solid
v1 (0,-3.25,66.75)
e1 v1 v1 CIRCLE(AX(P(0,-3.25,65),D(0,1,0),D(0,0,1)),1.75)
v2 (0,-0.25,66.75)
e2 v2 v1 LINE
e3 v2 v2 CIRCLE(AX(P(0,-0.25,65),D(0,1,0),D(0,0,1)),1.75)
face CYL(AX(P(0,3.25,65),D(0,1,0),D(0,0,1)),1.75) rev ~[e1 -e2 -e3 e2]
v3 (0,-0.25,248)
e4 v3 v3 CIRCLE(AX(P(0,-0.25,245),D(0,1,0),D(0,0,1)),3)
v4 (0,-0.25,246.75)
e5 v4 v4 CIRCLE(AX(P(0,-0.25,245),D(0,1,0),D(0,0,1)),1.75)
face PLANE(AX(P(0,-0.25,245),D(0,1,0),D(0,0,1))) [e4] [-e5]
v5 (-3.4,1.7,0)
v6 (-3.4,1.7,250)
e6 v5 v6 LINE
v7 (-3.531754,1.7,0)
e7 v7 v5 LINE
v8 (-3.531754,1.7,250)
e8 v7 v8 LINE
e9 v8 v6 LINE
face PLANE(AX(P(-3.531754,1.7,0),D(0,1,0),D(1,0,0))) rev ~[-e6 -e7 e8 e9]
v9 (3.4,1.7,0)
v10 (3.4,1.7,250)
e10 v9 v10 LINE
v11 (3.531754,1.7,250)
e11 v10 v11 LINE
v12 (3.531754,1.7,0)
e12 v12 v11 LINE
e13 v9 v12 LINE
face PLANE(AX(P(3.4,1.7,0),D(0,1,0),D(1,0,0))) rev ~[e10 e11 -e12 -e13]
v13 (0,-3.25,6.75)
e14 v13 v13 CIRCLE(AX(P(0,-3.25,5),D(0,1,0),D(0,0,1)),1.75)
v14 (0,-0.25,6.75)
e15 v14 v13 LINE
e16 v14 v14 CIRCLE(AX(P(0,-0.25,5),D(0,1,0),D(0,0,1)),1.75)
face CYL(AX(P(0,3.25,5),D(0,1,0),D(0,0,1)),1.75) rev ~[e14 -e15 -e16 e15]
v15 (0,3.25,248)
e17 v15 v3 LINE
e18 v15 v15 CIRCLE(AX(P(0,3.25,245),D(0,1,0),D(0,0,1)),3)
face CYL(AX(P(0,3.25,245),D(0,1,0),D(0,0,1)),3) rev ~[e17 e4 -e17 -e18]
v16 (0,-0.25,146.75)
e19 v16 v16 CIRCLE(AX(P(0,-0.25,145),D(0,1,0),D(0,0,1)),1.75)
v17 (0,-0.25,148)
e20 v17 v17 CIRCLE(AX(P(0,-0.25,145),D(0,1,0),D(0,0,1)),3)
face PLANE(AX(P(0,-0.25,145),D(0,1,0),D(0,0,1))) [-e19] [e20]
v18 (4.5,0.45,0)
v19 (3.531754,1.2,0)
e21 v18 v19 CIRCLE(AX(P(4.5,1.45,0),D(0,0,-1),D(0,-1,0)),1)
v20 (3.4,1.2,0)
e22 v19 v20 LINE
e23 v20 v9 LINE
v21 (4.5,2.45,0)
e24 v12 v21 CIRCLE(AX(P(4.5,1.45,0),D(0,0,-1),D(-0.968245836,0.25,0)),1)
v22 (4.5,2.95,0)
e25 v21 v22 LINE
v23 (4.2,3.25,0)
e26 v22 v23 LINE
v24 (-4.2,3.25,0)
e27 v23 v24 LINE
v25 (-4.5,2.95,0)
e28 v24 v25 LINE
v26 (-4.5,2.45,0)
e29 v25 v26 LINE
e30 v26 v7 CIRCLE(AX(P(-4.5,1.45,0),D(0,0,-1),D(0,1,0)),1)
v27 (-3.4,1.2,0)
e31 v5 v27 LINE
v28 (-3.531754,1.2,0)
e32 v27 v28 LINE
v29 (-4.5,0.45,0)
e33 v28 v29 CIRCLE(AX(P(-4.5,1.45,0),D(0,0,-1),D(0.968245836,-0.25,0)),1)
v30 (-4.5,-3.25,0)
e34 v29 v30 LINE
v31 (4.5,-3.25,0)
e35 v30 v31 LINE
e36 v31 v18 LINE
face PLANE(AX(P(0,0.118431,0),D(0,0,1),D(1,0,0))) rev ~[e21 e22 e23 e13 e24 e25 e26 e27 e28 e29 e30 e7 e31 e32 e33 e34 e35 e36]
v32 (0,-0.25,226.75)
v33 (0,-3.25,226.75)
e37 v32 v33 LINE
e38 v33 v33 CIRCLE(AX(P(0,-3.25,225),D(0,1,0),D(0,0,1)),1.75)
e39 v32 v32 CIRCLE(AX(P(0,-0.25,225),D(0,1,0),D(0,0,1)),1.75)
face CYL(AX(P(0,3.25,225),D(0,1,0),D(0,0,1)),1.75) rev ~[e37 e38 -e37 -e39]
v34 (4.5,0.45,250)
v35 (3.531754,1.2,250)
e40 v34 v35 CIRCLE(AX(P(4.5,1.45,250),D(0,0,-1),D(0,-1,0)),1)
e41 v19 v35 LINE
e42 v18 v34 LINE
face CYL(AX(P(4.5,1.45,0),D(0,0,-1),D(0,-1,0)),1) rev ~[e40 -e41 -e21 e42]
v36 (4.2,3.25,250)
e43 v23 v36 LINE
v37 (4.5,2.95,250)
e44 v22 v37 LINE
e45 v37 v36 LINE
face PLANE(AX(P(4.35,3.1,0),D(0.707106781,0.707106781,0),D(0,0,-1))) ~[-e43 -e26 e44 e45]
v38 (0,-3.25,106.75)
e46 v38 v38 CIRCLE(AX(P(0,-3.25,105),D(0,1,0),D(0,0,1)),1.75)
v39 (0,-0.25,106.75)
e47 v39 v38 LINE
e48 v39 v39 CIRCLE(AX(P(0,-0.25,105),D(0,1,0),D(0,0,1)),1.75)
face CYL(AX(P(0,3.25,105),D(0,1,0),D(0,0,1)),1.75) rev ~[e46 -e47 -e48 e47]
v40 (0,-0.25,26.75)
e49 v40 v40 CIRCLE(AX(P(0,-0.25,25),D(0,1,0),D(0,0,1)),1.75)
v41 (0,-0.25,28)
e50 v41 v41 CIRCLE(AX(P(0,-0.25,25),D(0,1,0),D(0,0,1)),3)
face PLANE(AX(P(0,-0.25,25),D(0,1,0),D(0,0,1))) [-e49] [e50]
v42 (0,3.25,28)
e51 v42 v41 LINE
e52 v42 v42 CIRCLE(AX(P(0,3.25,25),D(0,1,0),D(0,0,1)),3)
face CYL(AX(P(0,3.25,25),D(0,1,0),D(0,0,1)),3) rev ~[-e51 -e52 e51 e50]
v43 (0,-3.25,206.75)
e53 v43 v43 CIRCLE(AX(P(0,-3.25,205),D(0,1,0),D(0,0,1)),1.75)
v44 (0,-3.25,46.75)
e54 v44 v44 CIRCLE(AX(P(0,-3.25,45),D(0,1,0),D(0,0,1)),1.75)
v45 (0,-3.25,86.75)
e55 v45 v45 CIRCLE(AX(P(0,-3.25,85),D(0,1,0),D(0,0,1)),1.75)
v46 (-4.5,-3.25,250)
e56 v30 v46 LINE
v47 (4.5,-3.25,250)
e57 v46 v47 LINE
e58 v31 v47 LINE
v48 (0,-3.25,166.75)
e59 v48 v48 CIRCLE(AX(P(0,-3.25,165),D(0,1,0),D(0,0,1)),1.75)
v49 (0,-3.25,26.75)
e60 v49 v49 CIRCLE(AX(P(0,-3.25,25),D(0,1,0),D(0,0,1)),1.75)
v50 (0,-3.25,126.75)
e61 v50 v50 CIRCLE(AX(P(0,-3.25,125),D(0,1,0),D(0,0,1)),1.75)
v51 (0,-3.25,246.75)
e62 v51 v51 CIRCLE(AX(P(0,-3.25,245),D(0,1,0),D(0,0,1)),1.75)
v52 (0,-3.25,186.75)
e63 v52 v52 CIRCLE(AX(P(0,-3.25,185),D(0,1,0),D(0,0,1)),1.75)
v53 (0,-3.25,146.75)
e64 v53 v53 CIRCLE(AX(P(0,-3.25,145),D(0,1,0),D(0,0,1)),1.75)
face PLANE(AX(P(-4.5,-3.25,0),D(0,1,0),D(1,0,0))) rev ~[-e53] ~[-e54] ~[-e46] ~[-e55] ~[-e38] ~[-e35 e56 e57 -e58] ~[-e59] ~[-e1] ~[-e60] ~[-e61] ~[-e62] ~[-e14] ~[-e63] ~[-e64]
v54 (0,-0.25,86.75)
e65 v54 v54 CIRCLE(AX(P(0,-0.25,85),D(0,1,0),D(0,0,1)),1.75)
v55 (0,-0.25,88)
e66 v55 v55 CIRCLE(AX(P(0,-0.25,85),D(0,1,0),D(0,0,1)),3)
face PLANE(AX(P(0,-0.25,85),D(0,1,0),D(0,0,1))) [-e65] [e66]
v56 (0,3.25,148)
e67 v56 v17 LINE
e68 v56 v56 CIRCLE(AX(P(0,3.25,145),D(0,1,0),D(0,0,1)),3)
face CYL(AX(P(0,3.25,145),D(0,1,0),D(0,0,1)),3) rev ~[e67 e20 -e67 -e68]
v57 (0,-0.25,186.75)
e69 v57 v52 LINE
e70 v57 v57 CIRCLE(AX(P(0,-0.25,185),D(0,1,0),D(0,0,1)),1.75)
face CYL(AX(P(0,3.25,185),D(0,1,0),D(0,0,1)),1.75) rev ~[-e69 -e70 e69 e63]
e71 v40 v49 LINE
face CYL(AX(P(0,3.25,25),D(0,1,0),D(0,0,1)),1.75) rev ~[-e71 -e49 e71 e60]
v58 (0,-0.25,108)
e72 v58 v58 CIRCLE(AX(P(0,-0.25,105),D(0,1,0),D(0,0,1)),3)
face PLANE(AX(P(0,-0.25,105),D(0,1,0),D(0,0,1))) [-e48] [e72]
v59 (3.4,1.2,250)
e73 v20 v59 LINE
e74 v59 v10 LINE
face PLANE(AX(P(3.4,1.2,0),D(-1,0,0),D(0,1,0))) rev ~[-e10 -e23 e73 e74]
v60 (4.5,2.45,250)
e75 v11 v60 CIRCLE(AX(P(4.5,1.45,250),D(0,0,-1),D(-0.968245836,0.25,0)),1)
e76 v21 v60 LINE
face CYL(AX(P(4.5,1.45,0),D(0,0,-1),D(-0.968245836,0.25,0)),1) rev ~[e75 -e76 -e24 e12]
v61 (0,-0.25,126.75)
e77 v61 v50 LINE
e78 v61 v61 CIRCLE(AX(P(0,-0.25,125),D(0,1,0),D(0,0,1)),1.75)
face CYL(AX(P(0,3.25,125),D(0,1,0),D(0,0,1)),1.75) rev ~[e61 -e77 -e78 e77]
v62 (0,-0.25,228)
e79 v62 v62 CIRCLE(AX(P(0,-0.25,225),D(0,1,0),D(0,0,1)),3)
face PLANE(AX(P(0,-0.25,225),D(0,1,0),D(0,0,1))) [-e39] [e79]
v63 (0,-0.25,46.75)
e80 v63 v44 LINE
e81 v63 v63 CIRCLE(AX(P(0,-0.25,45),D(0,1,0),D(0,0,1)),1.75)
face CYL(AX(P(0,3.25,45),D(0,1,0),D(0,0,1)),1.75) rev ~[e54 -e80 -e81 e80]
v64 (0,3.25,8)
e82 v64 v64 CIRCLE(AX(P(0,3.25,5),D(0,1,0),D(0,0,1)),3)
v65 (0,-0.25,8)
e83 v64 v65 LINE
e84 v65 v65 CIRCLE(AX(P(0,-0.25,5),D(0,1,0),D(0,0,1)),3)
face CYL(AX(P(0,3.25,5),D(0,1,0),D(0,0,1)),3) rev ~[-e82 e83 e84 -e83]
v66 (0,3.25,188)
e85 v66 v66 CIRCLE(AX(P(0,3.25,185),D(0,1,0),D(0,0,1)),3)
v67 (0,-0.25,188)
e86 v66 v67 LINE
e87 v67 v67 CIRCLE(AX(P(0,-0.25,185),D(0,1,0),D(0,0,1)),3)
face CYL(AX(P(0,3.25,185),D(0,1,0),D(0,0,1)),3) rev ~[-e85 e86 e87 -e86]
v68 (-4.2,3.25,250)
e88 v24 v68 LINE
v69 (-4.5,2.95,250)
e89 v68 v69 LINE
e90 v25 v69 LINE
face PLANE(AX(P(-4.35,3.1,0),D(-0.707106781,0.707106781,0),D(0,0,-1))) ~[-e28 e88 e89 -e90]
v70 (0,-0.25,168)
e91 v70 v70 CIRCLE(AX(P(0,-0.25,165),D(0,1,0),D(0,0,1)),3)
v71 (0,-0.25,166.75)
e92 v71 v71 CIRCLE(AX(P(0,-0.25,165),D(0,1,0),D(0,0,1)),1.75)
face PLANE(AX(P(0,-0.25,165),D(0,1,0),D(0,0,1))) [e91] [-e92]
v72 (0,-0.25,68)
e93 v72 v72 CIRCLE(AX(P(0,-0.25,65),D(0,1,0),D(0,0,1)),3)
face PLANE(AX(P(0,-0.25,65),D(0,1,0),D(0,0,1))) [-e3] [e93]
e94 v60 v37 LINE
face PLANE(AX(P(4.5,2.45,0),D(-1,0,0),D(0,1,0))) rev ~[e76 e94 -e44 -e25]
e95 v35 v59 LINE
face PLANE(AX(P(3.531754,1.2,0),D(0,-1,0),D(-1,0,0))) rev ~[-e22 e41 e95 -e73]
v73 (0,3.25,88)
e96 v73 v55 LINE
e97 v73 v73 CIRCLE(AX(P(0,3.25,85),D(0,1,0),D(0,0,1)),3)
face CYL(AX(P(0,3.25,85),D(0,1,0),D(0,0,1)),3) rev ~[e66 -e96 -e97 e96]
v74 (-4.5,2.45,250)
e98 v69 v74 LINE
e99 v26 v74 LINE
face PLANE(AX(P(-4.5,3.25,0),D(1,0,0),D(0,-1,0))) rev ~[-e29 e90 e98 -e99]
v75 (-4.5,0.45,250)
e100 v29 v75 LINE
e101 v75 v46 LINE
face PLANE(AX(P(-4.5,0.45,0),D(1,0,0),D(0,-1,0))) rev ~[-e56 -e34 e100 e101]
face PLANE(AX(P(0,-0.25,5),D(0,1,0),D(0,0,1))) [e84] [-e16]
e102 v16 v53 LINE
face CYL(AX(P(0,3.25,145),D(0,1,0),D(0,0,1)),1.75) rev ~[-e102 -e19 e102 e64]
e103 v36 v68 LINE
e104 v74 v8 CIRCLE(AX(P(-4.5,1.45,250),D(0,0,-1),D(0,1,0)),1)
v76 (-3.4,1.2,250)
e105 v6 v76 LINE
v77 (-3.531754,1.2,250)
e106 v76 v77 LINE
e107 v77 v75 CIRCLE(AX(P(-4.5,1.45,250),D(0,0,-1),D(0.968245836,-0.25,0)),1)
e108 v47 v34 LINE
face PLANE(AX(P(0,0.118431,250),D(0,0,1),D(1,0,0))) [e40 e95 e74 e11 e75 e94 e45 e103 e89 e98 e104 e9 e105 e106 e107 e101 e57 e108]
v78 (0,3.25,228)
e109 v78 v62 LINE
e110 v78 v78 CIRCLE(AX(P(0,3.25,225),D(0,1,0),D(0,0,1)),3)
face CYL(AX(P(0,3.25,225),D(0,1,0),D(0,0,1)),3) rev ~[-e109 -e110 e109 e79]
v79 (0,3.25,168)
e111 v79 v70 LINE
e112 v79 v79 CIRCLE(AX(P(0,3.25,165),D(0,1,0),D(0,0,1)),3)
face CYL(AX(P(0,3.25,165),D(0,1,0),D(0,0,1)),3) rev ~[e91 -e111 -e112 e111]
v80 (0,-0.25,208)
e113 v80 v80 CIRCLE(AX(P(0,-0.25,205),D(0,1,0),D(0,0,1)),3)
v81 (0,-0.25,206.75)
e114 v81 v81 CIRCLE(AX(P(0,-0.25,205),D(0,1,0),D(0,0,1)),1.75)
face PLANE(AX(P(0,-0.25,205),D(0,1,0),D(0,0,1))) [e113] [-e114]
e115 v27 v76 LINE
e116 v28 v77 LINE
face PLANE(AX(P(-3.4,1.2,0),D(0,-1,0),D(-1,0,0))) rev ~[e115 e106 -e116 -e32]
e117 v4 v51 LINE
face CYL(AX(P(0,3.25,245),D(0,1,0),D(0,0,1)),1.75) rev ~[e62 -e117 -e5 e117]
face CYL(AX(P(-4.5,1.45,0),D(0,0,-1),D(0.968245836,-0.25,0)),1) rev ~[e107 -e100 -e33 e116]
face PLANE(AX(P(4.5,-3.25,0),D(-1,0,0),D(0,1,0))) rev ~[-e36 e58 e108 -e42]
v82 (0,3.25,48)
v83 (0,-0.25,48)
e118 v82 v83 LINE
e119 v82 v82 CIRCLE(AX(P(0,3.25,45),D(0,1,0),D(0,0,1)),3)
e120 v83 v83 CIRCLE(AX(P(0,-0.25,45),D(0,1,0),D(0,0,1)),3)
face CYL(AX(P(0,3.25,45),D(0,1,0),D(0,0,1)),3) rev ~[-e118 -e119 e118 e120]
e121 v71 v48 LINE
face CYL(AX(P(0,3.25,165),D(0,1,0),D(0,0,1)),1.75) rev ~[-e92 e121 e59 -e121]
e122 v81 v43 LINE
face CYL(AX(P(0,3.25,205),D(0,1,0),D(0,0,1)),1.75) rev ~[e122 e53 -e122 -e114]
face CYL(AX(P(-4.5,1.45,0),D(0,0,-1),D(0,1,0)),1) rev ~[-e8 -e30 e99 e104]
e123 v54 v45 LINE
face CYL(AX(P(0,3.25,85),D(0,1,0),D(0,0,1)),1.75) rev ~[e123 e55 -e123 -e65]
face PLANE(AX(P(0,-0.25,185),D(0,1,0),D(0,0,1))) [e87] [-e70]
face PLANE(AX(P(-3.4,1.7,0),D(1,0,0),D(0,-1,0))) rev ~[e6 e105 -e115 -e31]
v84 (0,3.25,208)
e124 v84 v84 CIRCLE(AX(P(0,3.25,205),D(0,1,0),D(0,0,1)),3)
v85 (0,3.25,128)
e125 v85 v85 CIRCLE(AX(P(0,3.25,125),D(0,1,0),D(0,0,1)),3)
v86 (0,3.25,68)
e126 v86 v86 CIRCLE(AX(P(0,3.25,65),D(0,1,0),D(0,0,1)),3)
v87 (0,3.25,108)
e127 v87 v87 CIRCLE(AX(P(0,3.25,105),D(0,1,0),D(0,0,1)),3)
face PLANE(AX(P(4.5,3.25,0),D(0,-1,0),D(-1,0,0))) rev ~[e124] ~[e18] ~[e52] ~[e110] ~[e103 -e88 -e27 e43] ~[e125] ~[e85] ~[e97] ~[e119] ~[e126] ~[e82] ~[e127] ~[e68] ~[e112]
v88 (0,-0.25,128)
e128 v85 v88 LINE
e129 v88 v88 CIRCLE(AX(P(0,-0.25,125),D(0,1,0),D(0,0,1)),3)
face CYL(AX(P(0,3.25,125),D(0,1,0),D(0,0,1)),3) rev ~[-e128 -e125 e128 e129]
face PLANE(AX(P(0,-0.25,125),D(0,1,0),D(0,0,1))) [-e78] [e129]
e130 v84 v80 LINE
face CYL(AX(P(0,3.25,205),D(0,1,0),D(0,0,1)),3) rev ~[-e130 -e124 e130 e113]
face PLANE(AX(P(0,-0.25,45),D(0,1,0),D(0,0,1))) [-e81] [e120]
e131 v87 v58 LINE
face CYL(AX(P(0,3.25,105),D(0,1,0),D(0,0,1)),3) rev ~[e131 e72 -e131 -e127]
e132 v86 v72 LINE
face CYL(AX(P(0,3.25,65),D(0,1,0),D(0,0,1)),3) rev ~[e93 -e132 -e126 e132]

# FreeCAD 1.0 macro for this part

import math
import FreeCAD as App
import Part
import Sketcher
Q = App.Units.Quantity


def edges_at(feature, points):
    """Names of the edges that pass closest to the given points."""
    edges = feature.Shape.Edges
    near = lambda p: min(range(len(edges)), key=lambda i: edges[i].distToShape(Part.Vertex(*p))[0])
    return sorted({f"Edge{near(p) + 1}" for p in points})

doc = App.newDocument("Part")
body = doc.addObject("PartDesign::Body", "Body")

sketch1 = body.newObject("Sketcher::SketchObject", "Sketch")
sketch1.AttachmentSupport = (doc.getObject("XY_Plane"), [""])
sketch1.MapMode = "FlatFace"
sketch1.addGeometry([
    Part.LineSegment(App.Vector(-4.5, -3.25, 0), App.Vector(4.5, -3.25, 0)),
    Part.LineSegment(App.Vector(4.5, -3.25, 0), App.Vector(4.5, 0.45, 0)),
    Part.ArcOfCircle(Part.Circle(App.Vector(4.5, 1.45, 0), App.Vector(0, 0, 1), 1), math.radians(-166), math.radians(-90)),
    Part.LineSegment(App.Vector(3.53, 1.2, 0), App.Vector(3.4, 1.2, 0)),
    Part.LineSegment(App.Vector(3.4, 1.2, 0), App.Vector(3.4, 1.7, 0)),
    Part.LineSegment(App.Vector(3.4, 1.7, 0), App.Vector(3.53, 1.7, 0)),
    Part.ArcOfCircle(Part.Circle(App.Vector(4.5, 1.45, 0), App.Vector(0, 0, 1), 1), math.radians(90), math.radians(166)),
    Part.LineSegment(App.Vector(4.5, 2.45, 0), App.Vector(4.5, 3.25, 0)),
    Part.LineSegment(App.Vector(4.5, 3.25, 0), App.Vector(-4.5, 3.25, 0)),
    Part.LineSegment(App.Vector(-4.5, 3.25, 0), App.Vector(-4.5, 2.45, 0)),
    Part.ArcOfCircle(Part.Circle(App.Vector(-4.5, 1.45, 0), App.Vector(0, 0, 1), 1), math.radians(14), math.radians(90)),
    Part.LineSegment(App.Vector(-3.53, 1.7, 0), App.Vector(-3.4, 1.7, 0)),
    Part.LineSegment(App.Vector(-3.4, 1.7, 0), App.Vector(-3.4, 1.2, 0)),
    Part.LineSegment(App.Vector(-3.4, 1.2, 0), App.Vector(-3.53, 1.2, 0)),
    Part.ArcOfCircle(Part.Circle(App.Vector(-4.5, 1.45, 0), App.Vector(0, 0, 1), 1), math.radians(-90), math.radians(-14)),
    Part.LineSegment(App.Vector(-4.5, 0.45, 0), App.Vector(-4.5, -3.25, 0)),
], False)
sketch1.addConstraint([
    Sketcher.Constraint("Coincident", 0, 2, 1, 1),
    Sketcher.Constraint("Coincident", 1, 2, 2, 2),
    Sketcher.Constraint("Coincident", 2, 1, 3, 1),
    Sketcher.Constraint("Coincident", 3, 2, 4, 1),
    Sketcher.Constraint("Coincident", 4, 2, 5, 1),
    Sketcher.Constraint("Coincident", 5, 2, 6, 2),
    Sketcher.Constraint("Coincident", 6, 1, 7, 1),
    Sketcher.Constraint("Coincident", 7, 2, 8, 1),
    Sketcher.Constraint("Coincident", 8, 2, 9, 1),
    Sketcher.Constraint("Coincident", 9, 2, 10, 2),
    Sketcher.Constraint("Coincident", 10, 1, 11, 1),
    Sketcher.Constraint("Coincident", 11, 2, 12, 1),
    Sketcher.Constraint("Coincident", 12, 2, 13, 1),
    Sketcher.Constraint("Coincident", 13, 2, 14, 2),
    Sketcher.Constraint("Coincident", 14, 1, 15, 1),
    Sketcher.Constraint("Coincident", 15, 2, 0, 1),
    Sketcher.Constraint("Horizontal", 0),
    Sketcher.Constraint("Vertical", 1),
    Sketcher.Constraint("Horizontal", 3),
    Sketcher.Constraint("Vertical", 4),
    Sketcher.Constraint("Horizontal", 5),
    Sketcher.Constraint("Vertical", 7),
    Sketcher.Constraint("Horizontal", 8),
    Sketcher.Constraint("Vertical", 9),
    Sketcher.Constraint("Horizontal", 11),
    Sketcher.Constraint("Vertical", 12),
    Sketcher.Constraint("Horizontal", 13),
    Sketcher.Constraint("Vertical", 15),
    Sketcher.Constraint("Coincident", 6, 3, 2, 3),
    Sketcher.Constraint("Coincident", 14, 3, 10, 3),
    Sketcher.Constraint("Equal", 2, 6),
    Sketcher.Constraint("Equal", 6, 10),
    Sketcher.Constraint("Equal", 10, 14),
    Sketcher.Constraint("Symmetric", 0, 2, 8, 2, -1, 1),
    Sketcher.Constraint("Symmetric", 2, 3, 10, 3, -2),
    Sketcher.Constraint("Symmetric", 4, 2, 11, 2, -2),
    Sketcher.Constraint("Horizontal", 3, 2, 12, 2),
    Sketcher.Constraint("Vertical", 6, 3, 0, 2),
    Sketcher.Constraint("Vertical", 2, 1, 5, 2),
    Sketcher.Constraint("Vertical", 1, 2, 6, 1),
    Sketcher.Constraint("Vertical", 9, 2, 14, 1),
    Sketcher.Constraint("Radius", 2, Q("1 mm")),
    Sketcher.Constraint("DistanceX", 0, 1, 0, 2, Q("9 mm")),
    Sketcher.Constraint("DistanceY", 1, 1, 1, 2, Q("3.7 mm")),
    Sketcher.Constraint("DistanceY", 4, 1, 4, 2, Q("0.5 mm")),
    Sketcher.Constraint("DistanceY", 7, 1, 7, 2, Q("0.8 mm")),
    Sketcher.Constraint("DistanceX", -1, 1, 3, 2, Q("3.4 mm")),
])
pad1 = body.newObject("PartDesign::Pad", "Pad")
pad1.Profile = sketch1
pad1.Length = 250

sketch2 = body.newObject("Sketcher::SketchObject", "Sketch001")
sketch2.AttachmentSupport = (doc.getObject("XZ_Plane"), [""])
sketch2.MapMode = "FlatFace"
sketch2.AttachmentOffset = App.Placement(App.Vector(0, 0, -3.25), App.Rotation())
sketch2.addGeometry(Part.Circle(App.Vector(0, 5, 0), App.Vector(0, 0, 1), 3), False)
sketch2.addConstraint([
    Sketcher.Constraint("PointOnObject", 0, 3, -2),
    Sketcher.Constraint("Diameter", 0, Q("6 mm")),
    Sketcher.Constraint("DistanceY", -1, 1, 0, 3, Q("5 mm")),
])
pocket1 = body.newObject("PartDesign::Pocket", "Pocket")
pocket1.Profile = sketch2
pocket1.Length = 3.5
pocket1.Reversed = True

sketch3 = body.newObject("Sketcher::SketchObject", "Sketch002")
sketch3.AttachmentSupport = (doc.getObject("XZ_Plane"), [""])
sketch3.MapMode = "FlatFace"
sketch3.AttachmentOffset = App.Placement(App.Vector(0, 0, -3.25), App.Rotation())
sketch3.addGeometry(Part.Circle(App.Vector(0, 5, 0), App.Vector(0, 0, 1), 1.8), False)
sketch3.addConstraint([
    Sketcher.Constraint("PointOnObject", 0, 3, -2),
    Sketcher.Constraint("Diameter", 0, Q("3.5 mm")),
    Sketcher.Constraint("DistanceY", -1, 1, 0, 3, Q("5 mm")),
])
pocket2 = body.newObject("PartDesign::Pocket", "Pocket001")
pocket2.Profile = sketch3
pocket2.Type = "ThroughAll"
pocket2.Reversed = True
doc.recompute()

linearpattern = body.newObject("PartDesign::LinearPattern", "LinearPattern")
linearpattern.Originals = [pocket1, pocket2]
linearpattern.Direction = (doc.getObject("Z_Axis"), [""])
linearpattern.Mode = "offset"
linearpattern.Offset = 20
linearpattern.Occurrences = 40
body.Tip = linearpattern
doc.recompute()

chamfer = body.newObject("PartDesign::Chamfer", "Chamfer")
chamfer.Base = (linearpattern, edges_at(linearpattern, [(-4.5, 3.25, 125), (4.5, 3.25, 125)]))
chamfer.Size = 0.3

doc.recompute()
